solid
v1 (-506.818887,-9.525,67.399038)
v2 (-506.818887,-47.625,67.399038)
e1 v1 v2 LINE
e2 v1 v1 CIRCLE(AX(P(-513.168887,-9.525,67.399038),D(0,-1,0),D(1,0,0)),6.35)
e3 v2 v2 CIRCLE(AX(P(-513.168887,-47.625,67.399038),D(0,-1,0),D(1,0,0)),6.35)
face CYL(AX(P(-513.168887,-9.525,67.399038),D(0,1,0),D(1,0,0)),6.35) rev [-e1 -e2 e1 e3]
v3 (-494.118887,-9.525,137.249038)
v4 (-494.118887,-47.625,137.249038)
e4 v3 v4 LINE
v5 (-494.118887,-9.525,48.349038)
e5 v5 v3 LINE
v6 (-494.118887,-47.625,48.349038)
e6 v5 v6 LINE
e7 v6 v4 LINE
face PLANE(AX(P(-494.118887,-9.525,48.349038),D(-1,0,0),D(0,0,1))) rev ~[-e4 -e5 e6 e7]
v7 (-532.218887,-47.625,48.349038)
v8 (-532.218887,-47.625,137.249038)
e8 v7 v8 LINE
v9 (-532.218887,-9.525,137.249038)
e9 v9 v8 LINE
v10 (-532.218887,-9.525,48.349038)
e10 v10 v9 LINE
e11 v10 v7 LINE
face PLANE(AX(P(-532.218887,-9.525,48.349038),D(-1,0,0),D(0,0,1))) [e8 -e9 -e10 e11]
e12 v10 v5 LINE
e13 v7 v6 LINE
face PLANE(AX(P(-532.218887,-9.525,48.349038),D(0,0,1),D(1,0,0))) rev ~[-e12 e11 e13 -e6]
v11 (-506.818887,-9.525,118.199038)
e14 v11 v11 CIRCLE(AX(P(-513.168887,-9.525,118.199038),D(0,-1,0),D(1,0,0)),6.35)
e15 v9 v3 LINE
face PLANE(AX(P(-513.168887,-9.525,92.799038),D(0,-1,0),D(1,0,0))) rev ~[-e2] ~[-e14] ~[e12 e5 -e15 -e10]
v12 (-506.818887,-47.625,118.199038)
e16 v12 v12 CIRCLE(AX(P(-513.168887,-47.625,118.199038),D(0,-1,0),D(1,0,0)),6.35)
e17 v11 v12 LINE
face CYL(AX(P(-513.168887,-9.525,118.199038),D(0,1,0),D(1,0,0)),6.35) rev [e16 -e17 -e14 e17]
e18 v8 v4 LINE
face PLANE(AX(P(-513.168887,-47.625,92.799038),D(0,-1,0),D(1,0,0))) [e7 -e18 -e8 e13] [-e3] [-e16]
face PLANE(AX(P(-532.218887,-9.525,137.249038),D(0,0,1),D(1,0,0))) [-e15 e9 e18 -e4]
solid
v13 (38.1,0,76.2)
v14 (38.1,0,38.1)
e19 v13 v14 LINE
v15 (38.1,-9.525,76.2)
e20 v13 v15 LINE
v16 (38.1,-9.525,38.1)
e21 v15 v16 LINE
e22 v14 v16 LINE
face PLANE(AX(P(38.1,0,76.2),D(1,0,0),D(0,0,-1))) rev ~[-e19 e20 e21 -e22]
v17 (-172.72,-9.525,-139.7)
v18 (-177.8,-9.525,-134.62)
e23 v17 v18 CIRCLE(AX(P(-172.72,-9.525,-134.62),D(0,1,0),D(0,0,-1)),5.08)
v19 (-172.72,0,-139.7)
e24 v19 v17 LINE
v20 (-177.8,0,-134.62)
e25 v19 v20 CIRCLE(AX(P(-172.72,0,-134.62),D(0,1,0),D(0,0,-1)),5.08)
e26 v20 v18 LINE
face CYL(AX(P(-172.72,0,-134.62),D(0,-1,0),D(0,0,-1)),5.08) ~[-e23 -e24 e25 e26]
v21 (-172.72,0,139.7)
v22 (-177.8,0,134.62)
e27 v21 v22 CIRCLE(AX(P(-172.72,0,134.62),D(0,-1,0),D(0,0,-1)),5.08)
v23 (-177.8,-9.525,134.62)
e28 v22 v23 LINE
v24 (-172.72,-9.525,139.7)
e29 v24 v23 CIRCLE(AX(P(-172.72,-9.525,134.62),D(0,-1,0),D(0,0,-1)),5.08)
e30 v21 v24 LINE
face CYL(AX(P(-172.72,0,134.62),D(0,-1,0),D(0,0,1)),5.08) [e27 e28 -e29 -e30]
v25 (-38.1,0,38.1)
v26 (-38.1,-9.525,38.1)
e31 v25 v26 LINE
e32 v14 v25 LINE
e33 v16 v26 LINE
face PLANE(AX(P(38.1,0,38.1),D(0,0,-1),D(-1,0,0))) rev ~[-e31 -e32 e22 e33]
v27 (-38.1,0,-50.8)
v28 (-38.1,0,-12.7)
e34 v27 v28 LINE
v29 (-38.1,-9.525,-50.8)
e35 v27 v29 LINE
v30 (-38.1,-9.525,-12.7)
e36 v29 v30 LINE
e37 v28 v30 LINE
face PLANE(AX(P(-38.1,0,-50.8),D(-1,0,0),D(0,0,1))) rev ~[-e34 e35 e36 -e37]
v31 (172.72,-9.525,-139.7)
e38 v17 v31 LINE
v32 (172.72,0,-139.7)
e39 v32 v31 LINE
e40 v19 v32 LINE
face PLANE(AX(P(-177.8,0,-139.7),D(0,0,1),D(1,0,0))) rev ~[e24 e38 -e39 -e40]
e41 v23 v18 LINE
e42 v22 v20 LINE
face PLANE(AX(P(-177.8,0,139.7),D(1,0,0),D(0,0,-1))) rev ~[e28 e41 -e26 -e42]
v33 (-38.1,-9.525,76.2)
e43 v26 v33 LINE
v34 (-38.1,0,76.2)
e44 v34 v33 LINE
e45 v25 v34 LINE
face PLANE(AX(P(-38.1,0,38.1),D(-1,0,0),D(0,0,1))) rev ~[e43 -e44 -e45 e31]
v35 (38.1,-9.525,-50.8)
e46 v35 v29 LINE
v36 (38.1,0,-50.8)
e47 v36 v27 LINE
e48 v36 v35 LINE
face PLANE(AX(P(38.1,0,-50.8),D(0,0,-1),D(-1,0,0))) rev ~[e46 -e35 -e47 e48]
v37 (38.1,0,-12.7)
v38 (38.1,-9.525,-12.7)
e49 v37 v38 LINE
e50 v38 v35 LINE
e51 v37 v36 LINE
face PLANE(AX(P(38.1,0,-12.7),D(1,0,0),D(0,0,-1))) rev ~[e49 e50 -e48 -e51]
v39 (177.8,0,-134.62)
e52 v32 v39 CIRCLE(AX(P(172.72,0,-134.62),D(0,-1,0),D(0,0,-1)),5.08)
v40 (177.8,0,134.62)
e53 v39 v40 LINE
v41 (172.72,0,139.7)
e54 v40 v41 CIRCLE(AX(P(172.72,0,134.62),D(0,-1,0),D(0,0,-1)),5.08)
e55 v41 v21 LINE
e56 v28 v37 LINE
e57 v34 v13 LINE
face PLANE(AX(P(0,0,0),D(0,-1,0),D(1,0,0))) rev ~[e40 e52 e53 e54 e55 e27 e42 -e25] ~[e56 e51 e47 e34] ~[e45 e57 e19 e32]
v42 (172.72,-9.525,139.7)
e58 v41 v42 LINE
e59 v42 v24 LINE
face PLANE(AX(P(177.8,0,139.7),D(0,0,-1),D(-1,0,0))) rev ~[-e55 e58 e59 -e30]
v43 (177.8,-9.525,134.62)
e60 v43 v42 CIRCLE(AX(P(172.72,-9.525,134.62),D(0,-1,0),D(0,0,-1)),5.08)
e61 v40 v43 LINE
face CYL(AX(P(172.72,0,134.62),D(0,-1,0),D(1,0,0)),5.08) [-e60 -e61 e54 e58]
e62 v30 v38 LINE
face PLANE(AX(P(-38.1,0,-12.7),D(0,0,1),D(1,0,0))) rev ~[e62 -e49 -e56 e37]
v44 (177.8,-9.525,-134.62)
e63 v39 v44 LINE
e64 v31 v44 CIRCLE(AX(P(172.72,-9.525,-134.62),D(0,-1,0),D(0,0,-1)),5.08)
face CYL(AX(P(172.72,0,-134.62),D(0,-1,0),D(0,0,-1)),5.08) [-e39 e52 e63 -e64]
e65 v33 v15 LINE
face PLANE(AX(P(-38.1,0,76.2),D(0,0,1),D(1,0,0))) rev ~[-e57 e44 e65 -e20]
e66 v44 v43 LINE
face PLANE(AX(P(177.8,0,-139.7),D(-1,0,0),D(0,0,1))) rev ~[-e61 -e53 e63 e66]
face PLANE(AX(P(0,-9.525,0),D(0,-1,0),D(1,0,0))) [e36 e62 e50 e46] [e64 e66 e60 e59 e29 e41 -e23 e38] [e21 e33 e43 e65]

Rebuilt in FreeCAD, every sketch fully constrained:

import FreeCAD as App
import Part
import Sketcher
Q = App.Units.Quantity


def edges_at(feature, points):
    """Names of the edges that pass closest to the given points."""
    edges = feature.Shape.Edges
    near = lambda p: min(range(len(edges)), key=lambda i: edges[i].distToShape(Part.Vertex(*p))[0])
    return sorted({f"Edge{near(p) + 1}" for p in points})


def add_polygon(sketch, points):
    """Adds a closed chain of lines whose ends are joined by coincident constraints."""
    first, n = sketch.GeometryCount, len(points)
    for a, b in zip(points, points[1:] + points[:1]):
        sketch.addGeometry(Part.LineSegment(App.Vector(*a, 0), App.Vector(*b, 0)), False)
    for i in range(n):
        sketch.addConstraint(Sketcher.Constraint("Coincident", first + i, 2, first + (i + 1) % n, 1))

doc = App.newDocument("Part")
body = doc.addObject("PartDesign::Body", "Body")

sketch1 = body.newObject("Sketcher::SketchObject", "Sketch")
sketch1.AttachmentSupport = (doc.getObject("XZ_Plane"), [""])
sketch1.MapMode = "FlatFace"
add_polygon(sketch1, [(-178, -140), (178, -140), (178, 140), (-178, 140)])
add_polygon(sketch1, [(-38, -51), (-38, -13), (38, -13), (38, -51)])
add_polygon(sketch1, [(-38, 38), (-38, 76), (38, 76), (38, 38)])
sketch1.addConstraint(Sketcher.Constraint("Horizontal", 0))
sketch1.addConstraint(Sketcher.Constraint("Vertical", 1))
sketch1.addConstraint(Sketcher.Constraint("Horizontal", 2))
sketch1.addConstraint(Sketcher.Constraint("Vertical", 3))
sketch1.addConstraint(Sketcher.Constraint("Vertical", 4))
sketch1.addConstraint(Sketcher.Constraint("Horizontal", 5))
sketch1.addConstraint(Sketcher.Constraint("Vertical", 6))
sketch1.addConstraint(Sketcher.Constraint("Horizontal", 7))
sketch1.addConstraint(Sketcher.Constraint("Vertical", 8))
sketch1.addConstraint(Sketcher.Constraint("Horizontal", 9))
sketch1.addConstraint(Sketcher.Constraint("Vertical", 10))
sketch1.addConstraint(Sketcher.Constraint("Horizontal", 11))
sketch1.addConstraint(Sketcher.Constraint("Symmetric", 0, 2, 2, 2, -1, 1))
sketch1.addConstraint(Sketcher.Constraint("Vertical", 7, 2, 8, 2))
sketch1.addConstraint(Sketcher.Constraint("Vertical", 6, 2, 9, 2))
sketch1.addConstraint(Sketcher.Constraint("Equal", 6, 8))
sketch1.addConstraint(Sketcher.Constraint("DistanceX", 0, 1, 0, 2, Q("14 in")))
sketch1.addConstraint(Sketcher.Constraint("DistanceX", 5, 1, 5, 2, Q("3 in")))
sketch1.addConstraint(Sketcher.Constraint("DistanceY", 1, 1, 1, 2, Q("11 in")))
sketch1.addConstraint(Sketcher.Constraint("DistanceY", 4, 1, 4, 2, Q("1.5 in")))
sketch1.addConstraint(Sketcher.Constraint("DistanceY", 6, 2, -1, 1, Q("2 in")))
sketch1.addConstraint(Sketcher.Constraint("DistanceY", -1, 1, 8, 2, Q("3 in")))
sketch1.addConstraint(Sketcher.Constraint("DistanceX", 4, 2, -1, 1, Q("1.5 in")))
pad1 = body.newObject("PartDesign::Pad", "Pad")
pad1.Profile = sketch1
pad1.Length = Q("0.375 in")
doc.recompute()

fillet = body.newObject("PartDesign::Fillet", "Fillet")
fillet.Base = (pad1, edges_at(pad1, [
    (-177.8, -4.763, 139.7),
    (177.8, -4.763, 139.7),
    (177.8, -4.763, -139.7),
    (-177.8, -4.763, -139.7),
]))
fillet.Radius = Q("0.2 in")
body2 = doc.addObject("PartDesign::Body", "Body001")

sketch2 = body2.newObject("Sketcher::SketchObject", "Sketch001")
sketch2.AttachmentSupport = (doc.getObject("XZ_Plane001"), [""])
sketch2.MapMode = "FlatFace"
sketch2.AttachmentOffset = App.Placement(App.Vector(0, 0, 0.375 * 25.4), App.Rotation())
add_polygon(sketch2, [(-532, 137), (-532, 48), (-494, 48), (-494, 137)])
sketch2.addGeometry(Part.Circle(App.Vector(-513, 67, 0), App.Vector(0, 0, 1), 6), False)
sketch2.addGeometry(Part.Circle(App.Vector(-513, 118, 0), App.Vector(0, 0, 1), 6), False)
sketch2.addConstraint(Sketcher.Constraint("Vertical", 0))
sketch2.addConstraint(Sketcher.Constraint("Horizontal", 1))
sketch2.addConstraint(Sketcher.Constraint("Vertical", 2))
sketch2.addConstraint(Sketcher.Constraint("Horizontal", 3))
sketch2.addConstraint(Sketcher.Constraint("Equal", 4, 5))
sketch2.addConstraint(Sketcher.Constraint("Vertical", 4, 3, 5, 3))
sketch2.addConstraint(Sketcher.Constraint("Diameter", 4, Q("0.5 in")))
sketch2.addConstraint(Sketcher.Constraint("DistanceX", 1, 1, 1, 2, Q("1.5 in")))
sketch2.addConstraint(Sketcher.Constraint("DistanceY", 0, 2, 0, 1, Q("3.5 in")))
sketch2.addConstraint(Sketcher.Constraint("DistanceY", 4, 3, 5, 3, Q("2 in")))
sketch2.addConstraint(Sketcher.Constraint("DistanceX", 0, 2, 4, 3, Q("0.75 in")))
sketch2.addConstraint(Sketcher.Constraint("DistanceY", 0, 2, 4, 3, Q("0.75 in")))
sketch2.addConstraint(Sketcher.Constraint("DistanceY", -1, 1, 4, 3, Q("67.399038 mm")))
sketch2.addConstraint(Sketcher.Constraint("DistanceX", 4, 3, -1, 1, Q("513.168887 mm")))
pad2 = body2.newObject("PartDesign::Pad", "Pad001")
pad2.Profile = sketch2
pad2.Length = Q("1.5 in")

doc.recompute()
